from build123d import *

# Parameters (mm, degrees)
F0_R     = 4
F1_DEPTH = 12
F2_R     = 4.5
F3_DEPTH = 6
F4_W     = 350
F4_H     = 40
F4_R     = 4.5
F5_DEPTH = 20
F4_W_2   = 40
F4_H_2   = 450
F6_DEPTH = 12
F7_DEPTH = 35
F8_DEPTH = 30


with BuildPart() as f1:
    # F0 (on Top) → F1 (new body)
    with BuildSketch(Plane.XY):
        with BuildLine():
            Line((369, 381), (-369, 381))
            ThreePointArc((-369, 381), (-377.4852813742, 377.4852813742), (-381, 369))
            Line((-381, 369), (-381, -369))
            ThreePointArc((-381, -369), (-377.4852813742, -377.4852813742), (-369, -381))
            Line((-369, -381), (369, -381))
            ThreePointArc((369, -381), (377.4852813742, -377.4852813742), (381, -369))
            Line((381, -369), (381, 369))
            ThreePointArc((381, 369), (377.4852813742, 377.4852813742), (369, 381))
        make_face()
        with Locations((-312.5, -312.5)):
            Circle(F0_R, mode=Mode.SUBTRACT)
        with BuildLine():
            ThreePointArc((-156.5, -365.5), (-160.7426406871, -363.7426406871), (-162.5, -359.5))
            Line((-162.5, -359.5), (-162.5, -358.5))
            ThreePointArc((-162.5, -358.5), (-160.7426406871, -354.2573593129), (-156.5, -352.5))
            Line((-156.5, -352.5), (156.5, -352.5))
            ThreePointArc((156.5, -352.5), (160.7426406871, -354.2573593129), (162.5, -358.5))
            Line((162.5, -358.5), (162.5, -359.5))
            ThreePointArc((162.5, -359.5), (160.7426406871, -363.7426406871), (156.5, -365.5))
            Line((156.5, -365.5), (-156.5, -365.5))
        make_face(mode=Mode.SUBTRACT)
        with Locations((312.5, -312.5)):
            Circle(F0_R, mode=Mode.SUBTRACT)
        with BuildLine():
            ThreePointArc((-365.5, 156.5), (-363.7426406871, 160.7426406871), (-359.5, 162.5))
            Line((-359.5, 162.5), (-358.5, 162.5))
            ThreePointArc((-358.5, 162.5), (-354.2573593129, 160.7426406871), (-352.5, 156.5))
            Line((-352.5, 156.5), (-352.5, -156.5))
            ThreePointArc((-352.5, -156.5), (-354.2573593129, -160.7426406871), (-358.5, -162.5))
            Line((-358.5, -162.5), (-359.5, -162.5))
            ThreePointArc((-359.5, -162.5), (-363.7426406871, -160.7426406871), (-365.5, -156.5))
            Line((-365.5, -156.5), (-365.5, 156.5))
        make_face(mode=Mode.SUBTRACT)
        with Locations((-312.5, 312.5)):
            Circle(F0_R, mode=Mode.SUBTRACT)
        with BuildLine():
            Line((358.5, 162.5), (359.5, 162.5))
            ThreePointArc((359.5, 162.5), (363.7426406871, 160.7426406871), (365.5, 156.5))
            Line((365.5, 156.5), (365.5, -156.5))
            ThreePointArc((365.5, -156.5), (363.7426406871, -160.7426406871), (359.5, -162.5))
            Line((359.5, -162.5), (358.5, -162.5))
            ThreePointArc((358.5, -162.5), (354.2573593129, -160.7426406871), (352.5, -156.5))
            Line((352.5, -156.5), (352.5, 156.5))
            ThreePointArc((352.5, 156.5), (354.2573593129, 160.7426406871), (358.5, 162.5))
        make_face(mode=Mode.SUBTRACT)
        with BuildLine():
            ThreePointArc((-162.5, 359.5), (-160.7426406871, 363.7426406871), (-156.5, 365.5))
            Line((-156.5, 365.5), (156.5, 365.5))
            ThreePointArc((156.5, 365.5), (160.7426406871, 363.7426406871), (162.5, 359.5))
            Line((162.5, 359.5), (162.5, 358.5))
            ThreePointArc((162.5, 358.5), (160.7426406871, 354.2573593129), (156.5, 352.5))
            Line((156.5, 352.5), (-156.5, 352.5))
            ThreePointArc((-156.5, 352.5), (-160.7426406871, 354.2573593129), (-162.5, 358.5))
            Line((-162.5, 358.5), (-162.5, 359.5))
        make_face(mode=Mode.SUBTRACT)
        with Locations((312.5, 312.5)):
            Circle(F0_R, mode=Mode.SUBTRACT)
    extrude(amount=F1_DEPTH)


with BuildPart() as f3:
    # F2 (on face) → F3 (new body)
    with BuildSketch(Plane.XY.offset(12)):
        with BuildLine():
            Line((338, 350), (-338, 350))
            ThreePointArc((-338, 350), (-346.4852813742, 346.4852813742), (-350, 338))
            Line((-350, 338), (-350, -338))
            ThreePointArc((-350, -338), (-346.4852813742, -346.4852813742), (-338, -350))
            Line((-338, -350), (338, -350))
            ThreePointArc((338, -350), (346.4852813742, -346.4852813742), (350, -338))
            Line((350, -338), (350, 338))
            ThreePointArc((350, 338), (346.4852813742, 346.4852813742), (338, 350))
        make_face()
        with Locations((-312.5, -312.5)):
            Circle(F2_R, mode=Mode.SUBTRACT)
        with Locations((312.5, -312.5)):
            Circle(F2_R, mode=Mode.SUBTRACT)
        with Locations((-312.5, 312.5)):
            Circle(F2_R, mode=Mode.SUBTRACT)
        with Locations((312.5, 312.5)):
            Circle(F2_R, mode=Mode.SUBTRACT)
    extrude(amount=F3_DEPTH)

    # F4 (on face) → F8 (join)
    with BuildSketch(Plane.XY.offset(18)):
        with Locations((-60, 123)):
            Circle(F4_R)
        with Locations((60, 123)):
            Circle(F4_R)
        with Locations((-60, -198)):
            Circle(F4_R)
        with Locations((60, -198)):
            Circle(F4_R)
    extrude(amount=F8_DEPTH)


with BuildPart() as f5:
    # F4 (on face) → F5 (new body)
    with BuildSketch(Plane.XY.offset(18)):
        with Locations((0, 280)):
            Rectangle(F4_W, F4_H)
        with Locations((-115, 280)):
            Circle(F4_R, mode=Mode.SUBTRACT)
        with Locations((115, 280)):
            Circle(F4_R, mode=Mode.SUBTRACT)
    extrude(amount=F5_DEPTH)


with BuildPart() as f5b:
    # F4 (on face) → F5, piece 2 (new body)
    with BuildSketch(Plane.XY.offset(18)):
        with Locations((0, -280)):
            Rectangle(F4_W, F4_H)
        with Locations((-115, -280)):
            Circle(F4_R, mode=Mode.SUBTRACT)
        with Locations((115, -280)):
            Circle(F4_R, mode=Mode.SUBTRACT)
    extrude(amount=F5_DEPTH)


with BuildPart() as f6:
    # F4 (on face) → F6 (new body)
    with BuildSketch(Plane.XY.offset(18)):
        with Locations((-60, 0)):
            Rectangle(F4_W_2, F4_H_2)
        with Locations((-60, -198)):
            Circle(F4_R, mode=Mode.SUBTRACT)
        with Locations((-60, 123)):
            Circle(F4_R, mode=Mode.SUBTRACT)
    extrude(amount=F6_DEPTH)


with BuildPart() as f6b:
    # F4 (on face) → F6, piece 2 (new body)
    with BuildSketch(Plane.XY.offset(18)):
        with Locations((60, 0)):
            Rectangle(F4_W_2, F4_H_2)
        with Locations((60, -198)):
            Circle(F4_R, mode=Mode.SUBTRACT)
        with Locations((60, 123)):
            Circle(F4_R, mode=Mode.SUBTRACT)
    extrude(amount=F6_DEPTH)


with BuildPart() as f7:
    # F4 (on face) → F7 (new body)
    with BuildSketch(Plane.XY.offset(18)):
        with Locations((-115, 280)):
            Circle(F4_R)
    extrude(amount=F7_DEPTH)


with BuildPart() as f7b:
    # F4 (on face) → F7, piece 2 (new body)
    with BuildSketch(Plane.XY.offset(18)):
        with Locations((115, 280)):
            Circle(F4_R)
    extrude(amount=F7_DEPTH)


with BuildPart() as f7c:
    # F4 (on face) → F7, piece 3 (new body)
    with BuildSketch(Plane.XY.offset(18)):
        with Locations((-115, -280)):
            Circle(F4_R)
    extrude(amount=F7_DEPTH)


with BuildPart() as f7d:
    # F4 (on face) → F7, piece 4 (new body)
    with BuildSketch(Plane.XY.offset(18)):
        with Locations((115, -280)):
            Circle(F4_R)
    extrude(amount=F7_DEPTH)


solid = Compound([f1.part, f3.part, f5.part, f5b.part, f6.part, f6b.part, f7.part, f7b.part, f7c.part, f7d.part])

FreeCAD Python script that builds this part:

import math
import FreeCAD as App
import Part
import Sketcher
Q = App.Units.Quantity

doc = App.newDocument("Part")
params = doc.addObject("Spreadsheet::Sheet", "Params")
for row, (alias, value) in enumerate([
    ("sketch1_diameter", "8 mm"),
    ("sketch1_radius", "12 mm"),
    ("sketch1_radius2", "6 mm"),
    ("sketch1_width", "738 mm"),
    ("sketch1_width2", "313 mm"),
    ("pad1_length", "12 mm"),
    ("sketch2_diameter", "9 mm"),
    ("sketch2_radius", "12 mm"),
    ("sketch2_width", "676 mm"),
    ("pad2_length", "6 mm"),
    ("sketch3_diameter", "9 mm"),
    ("pad3_length", "30 mm"),
    ("sketch4_diameter", "9 mm"),
    ("sketch4_width", "350 mm"),
    ("sketch4_height", "40 mm"),
    ("pad4_length", "20 mm"),
    ("sketch5_diameter", "9 mm"),
    ("sketch5_width", "350 mm"),
    ("sketch5_height", "40 mm"),
    ("pad5_length", "20 mm"),
    ("sketch6_diameter", "9 mm"),
    ("sketch6_width", "40 mm"),
    ("sketch6_height", "450 mm"),
    ("pad6_length", "12 mm"),
    ("sketch7_diameter", "9 mm"),
    ("sketch7_width", "40 mm"),
    ("sketch7_height", "450 mm"),
    ("pad7_length", "12 mm"),
    ("sketch8_diameter", "9 mm"),
    ("pad8_length", "35 mm"),
    ("sketch9_diameter", "9 mm"),
    ("pad9_length", "35 mm"),
    ("sketch10_diameter", "9 mm"),
    ("pad10_length", "35 mm"),
    ("sketch11_diameter", "9 mm"),
    ("pad11_length", "35 mm"),
], start=1):
    params.set(f"A{row}", alias)
    params.set(f"B{row}", "=" + value)
    params.setAlias(f"B{row}", alias)

body = doc.addObject("PartDesign::Body", "Body")

sketch1 = body.newObject("Sketcher::SketchObject", "Sketch")
sketch1.AttachmentSupport = (doc.getObject("XY_Plane"), [""])
sketch1.MapMode = "FlatFace"
sketch1.addGeometry(Part.LineSegment(App.Vector(369, 381, 0), App.Vector(-369, 381, 0)), False)
sketch1.addGeometry(Part.ArcOfCircle(Part.Circle(App.Vector(-369, 369, 0), App.Vector(0, 0, 1), 12), math.radians(90), math.radians(180)), False)
sketch1.addGeometry(Part.LineSegment(App.Vector(-381, 369, 0), App.Vector(-381, -369, 0)), False)
sketch1.addGeometry(Part.ArcOfCircle(Part.Circle(App.Vector(-369, -369, 0), App.Vector(0, 0, 1), 12), math.radians(180), math.radians(270)), False)
sketch1.addGeometry(Part.LineSegment(App.Vector(-369, -381, 0), App.Vector(369, -381, 0)), False)
sketch1.addGeometry(Part.ArcOfCircle(Part.Circle(App.Vector(369, -369, 0), App.Vector(0, 0, 1), 12), math.radians(-90), math.radians(0)), False)
sketch1.addGeometry(Part.LineSegment(App.Vector(381, -369, 0), App.Vector(381, 369, 0)), False)
sketch1.addGeometry(Part.ArcOfCircle(Part.Circle(App.Vector(369, 369, 0), App.Vector(0, 0, 1), 12), math.radians(0), math.radians(90)), False)
sketch1.addGeometry(Part.Circle(App.Vector(-312.5, -312.5, 0), App.Vector(0, 0, 1), 4), False)
sketch1.addGeometry(Part.LineSegment(App.Vector(156.5, -365.5, 0), App.Vector(-156.5, -365.5, 0)), False)
sketch1.addGeometry(Part.ArcOfCircle(Part.Circle(App.Vector(-156.5, -359.5, 0), App.Vector(0, 0, 1), 6), math.radians(180), math.radians(270)), False)
sketch1.addGeometry(Part.LineSegment(App.Vector(-162.5, -359.5, 0), App.Vector(-162.5, -358.5, 0)), False)
sketch1.addGeometry(Part.ArcOfCircle(Part.Circle(App.Vector(-156.5, -358.5, 0), App.Vector(0, 0, 1), 6), math.radians(90), math.radians(180)), False)
sketch1.addGeometry(Part.LineSegment(App.Vector(-156.5, -352.5, 0), App.Vector(156.5, -352.5, 0)), False)
sketch1.addGeometry(Part.ArcOfCircle(Part.Circle(App.Vector(156.5, -358.5, 0), App.Vector(0, 0, 1), 6), math.radians(0), math.radians(90)), False)
sketch1.addGeometry(Part.LineSegment(App.Vector(162.5, -358.5, 0), App.Vector(162.5, -359.5, 0)), False)
sketch1.addGeometry(Part.ArcOfCircle(Part.Circle(App.Vector(156.5, -359.5, 0), App.Vector(0, 0, 1), 6), math.radians(-90), math.radians(0)), False)
sketch1.addGeometry(Part.Circle(App.Vector(312.5, -312.5, 0), App.Vector(0, 0, 1), 4), False)
sketch1.addGeometry(Part.LineSegment(App.Vector(-365.5, -156.5, 0), App.Vector(-365.5, 156.5, 0)), False)
sketch1.addGeometry(Part.ArcOfCircle(Part.Circle(App.Vector(-359.5, 156.5, 0), App.Vector(0, 0, 1), 6), math.radians(90), math.radians(180)), False)
sketch1.addGeometry(Part.LineSegment(App.Vector(-359.5, 162.5, 0), App.Vector(-358.5, 162.5, 0)), False)
sketch1.addGeometry(Part.ArcOfCircle(Part.Circle(App.Vector(-358.5, 156.5, 0), App.Vector(0, 0, 1), 6), math.radians(0), math.radians(90)), False)
sketch1.addGeometry(Part.LineSegment(App.Vector(-352.5, 156.5, 0), App.Vector(-352.5, -156.5, 0)), False)
sketch1.addGeometry(Part.ArcOfCircle(Part.Circle(App.Vector(-358.5, -156.5, 0), App.Vector(0, 0, 1), 6), math.radians(-90), math.radians(0)), False)
sketch1.addGeometry(Part.LineSegment(App.Vector(-358.5, -162.5, 0), App.Vector(-359.5, -162.5, 0)), False)
sketch1.addGeometry(Part.ArcOfCircle(Part.Circle(App.Vector(-359.5, -156.5, 0), App.Vector(0, 0, 1), 6), math.radians(180), math.radians(270)), False)
sketch1.addGeometry(Part.Circle(App.Vector(-312.5, 312.5, 0), App.Vector(0, 0, 1), 4), False)
sketch1.addGeometry(Part.ArcOfCircle(Part.Circle(App.Vector(358.5, 156.5, 0), App.Vector(0, 0, 1), 6), math.radians(90), math.radians(180)), False)
sketch1.addGeometry(Part.LineSegment(App.Vector(358.5, 162.5, 0), App.Vector(359.5, 162.5, 0)), False)
sketch1.addGeometry(Part.ArcOfCircle(Part.Circle(App.Vector(359.5, 156.5, 0), App.Vector(0, 0, 1), 6), math.radians(0), math.radians(90)), False)
sketch1.addGeometry(Part.LineSegment(App.Vector(365.5, 156.5, 0), App.Vector(365.5, -156.5, 0)), False)
sketch1.addGeometry(Part.ArcOfCircle(Part.Circle(App.Vector(359.5, -156.5, 0), App.Vector(0, 0, 1), 6), math.radians(-90), math.radians(0)), False)
sketch1.addGeometry(Part.LineSegment(App.Vector(359.5, -162.5, 0), App.Vector(358.5, -162.5, 0)), False)
sketch1.addGeometry(Part.ArcOfCircle(Part.Circle(App.Vector(358.5, -156.5, 0), App.Vector(0, 0, 1), 6), math.radians(180), math.radians(270)), False)
sketch1.addGeometry(Part.LineSegment(App.Vector(352.5, -156.5, 0), App.Vector(352.5, 156.5, 0)), False)
sketch1.addGeometry(Part.LineSegment(App.Vector(-162.5, 358.5, 0), App.Vector(-162.5, 359.5, 0)), False)
sketch1.addGeometry(Part.ArcOfCircle(Part.Circle(App.Vector(-156.5, 359.5, 0), App.Vector(0, 0, 1), 6), math.radians(90), math.radians(180)), False)
sketch1.addGeometry(Part.LineSegment(App.Vector(-156.5, 365.5, 0), App.Vector(156.5, 365.5, 0)), False)
sketch1.addGeometry(Part.ArcOfCircle(Part.Circle(App.Vector(156.5, 359.5, 0), App.Vector(0, 0, 1), 6), math.radians(0), math.radians(90)), False)
sketch1.addGeometry(Part.LineSegment(App.Vector(162.5, 359.5, 0), App.Vector(162.5, 358.5, 0)), False)
sketch1.addGeometry(Part.ArcOfCircle(Part.Circle(App.Vector(156.5, 358.5, 0), App.Vector(0, 0, 1), 6), math.radians(-90), math.radians(0)), False)
sketch1.addGeometry(Part.LineSegment(App.Vector(156.5, 352.5, 0), App.Vector(-156.5, 352.5, 0)), False)
sketch1.addGeometry(Part.ArcOfCircle(Part.Circle(App.Vector(-156.5, 358.5, 0), App.Vector(0, 0, 1), 6), math.radians(180), math.radians(270)), False)
sketch1.addGeometry(Part.Circle(App.Vector(312.5, 312.5, 0), App.Vector(0, 0, 1), 4), False)
sketch1.addConstraint(Sketcher.Constraint("Tangent", 0, 2, 1, 1))
sketch1.addConstraint(Sketcher.Constraint("Tangent", 1, 2, 2, 1))
sketch1.addConstraint(Sketcher.Constraint("Tangent", 2, 2, 3, 1))
sketch1.addConstraint(Sketcher.Constraint("Tangent", 3, 2, 4, 1))
sketch1.addConstraint(Sketcher.Constraint("Tangent", 4, 2, 5, 1))
sketch1.addConstraint(Sketcher.Constraint("Tangent", 5, 2, 6, 1))
sketch1.addConstraint(Sketcher.Constraint("Tangent", 6, 2, 7, 1))
sketch1.addConstraint(Sketcher.Constraint("Tangent", 7, 2, 0, 1))
sketch1.addConstraint(Sketcher.Constraint("Tangent", 9, 2, 10, 2))
sketch1.addConstraint(Sketcher.Constraint("Tangent", 10, 1, 11, 1))
sketch1.addConstraint(Sketcher.Constraint("Tangent", 11, 2, 12, 2))
sketch1.addConstraint(Sketcher.Constraint("Tangent", 12, 1, 13, 1))
sketch1.addConstraint(Sketcher.Constraint("Tangent", 13, 2, 14, 2))
sketch1.addConstraint(Sketcher.Constraint("Tangent", 14, 1, 15, 1))
sketch1.addConstraint(Sketcher.Constraint("Tangent", 15, 2, 16, 2))
sketch1.addConstraint(Sketcher.Constraint("Tangent", 16, 1, 9, 1))
sketch1.addConstraint(Sketcher.Constraint("Tangent", 18, 2, 19, 2))
sketch1.addConstraint(Sketcher.Constraint("Tangent", 19, 1, 20, 1))
sketch1.addConstraint(Sketcher.Constraint("Tangent", 20, 2, 21, 2))
sketch1.addConstraint(Sketcher.Constraint("Tangent", 21, 1, 22, 1))
sketch1.addConstraint(Sketcher.Constraint("Tangent", 22, 2, 23, 2))
sketch1.addConstraint(Sketcher.Constraint("Tangent", 23, 1, 24, 1))
sketch1.addConstraint(Sketcher.Constraint("Tangent", 24, 2, 25, 2))
sketch1.addConstraint(Sketcher.Constraint("Tangent", 25, 1, 18, 1))
sketch1.addConstraint(Sketcher.Constraint("Tangent", 27, 1, 28, 1))
sketch1.addConstraint(Sketcher.Constraint("Tangent", 28, 2, 29, 2))
sketch1.addConstraint(Sketcher.Constraint("Tangent", 29, 1, 30, 1))
sketch1.addConstraint(Sketcher.Constraint("Tangent", 30, 2, 31, 2))
sketch1.addConstraint(Sketcher.Constraint("Tangent", 31, 1, 32, 1))
sketch1.addConstraint(Sketcher.Constraint("Tangent", 32, 2, 33, 2))
sketch1.addConstraint(Sketcher.Constraint("Tangent", 33, 1, 34, 1))
sketch1.addConstraint(Sketcher.Constraint("Tangent", 34, 2, 27, 2))
sketch1.addConstraint(Sketcher.Constraint("Tangent", 35, 2, 36, 2))
sketch1.addConstraint(Sketcher.Constraint("Tangent", 36, 1, 37, 1))
sketch1.addConstraint(Sketcher.Constraint("Tangent", 37, 2, 38, 2))
sketch1.addConstraint(Sketcher.Constraint("Tangent", 38, 1, 39, 1))
sketch1.addConstraint(Sketcher.Constraint("Tangent", 39, 2, 40, 2))
sketch1.addConstraint(Sketcher.Constraint("Tangent", 40, 1, 41, 1))
sketch1.addConstraint(Sketcher.Constraint("Tangent", 41, 2, 42, 2))
sketch1.addConstraint(Sketcher.Constraint("Tangent", 42, 1, 35, 1))
sketch1.addConstraint(Sketcher.Constraint("Horizontal", 0))
sketch1.addConstraint(Sketcher.Constraint("Vertical", 2))
sketch1.addConstraint(Sketcher.Constraint("Horizontal", 4))
sketch1.addConstraint(Sketcher.Constraint("Vertical", 6))
sketch1.addConstraint(Sketcher.Constraint("Horizontal", 9))
sketch1.addConstraint(Sketcher.Constraint("Vertical", 11))
sketch1.addConstraint(Sketcher.Constraint("Horizontal", 13))
sketch1.addConstraint(Sketcher.Constraint("Vertical", 15))
sketch1.addConstraint(Sketcher.Constraint("Vertical", 18))
sketch1.addConstraint(Sketcher.Constraint("Horizontal", 20))
sketch1.addConstraint(Sketcher.Constraint("Vertical", 22))
sketch1.addConstraint(Sketcher.Constraint("Horizontal", 24))
sketch1.addConstraint(Sketcher.Constraint("Horizontal", 28))
sketch1.addConstraint(Sketcher.Constraint("Vertical", 30))
sketch1.addConstraint(Sketcher.Constraint("Horizontal", 32))
sketch1.addConstraint(Sketcher.Constraint("Vertical", 34))
sketch1.addConstraint(Sketcher.Constraint("Vertical", 35))
sketch1.addConstraint(Sketcher.Constraint("Horizontal", 37))
sketch1.addConstraint(Sketcher.Constraint("Vertical", 39))
sketch1.addConstraint(Sketcher.Constraint("Horizontal", 41))
sketch1.addConstraint(Sketcher.Constraint("Equal", 1, 3))
sketch1.addConstraint(Sketcher.Constraint("Equal", 3, 5))
sketch1.addConstraint(Sketcher.Constraint("Equal", 5, 7))
sketch1.addConstraint(Sketcher.Constraint("Equal", 10, 12))
sketch1.addConstraint(Sketcher.Constraint("Equal", 12, 14))
sketch1.addConstraint(Sketcher.Constraint("Equal", 14, 16))
sketch1.addConstraint(Sketcher.Constraint("Equal", 8, 17))
sketch1.addConstraint(Sketcher.Constraint("Equal", 16, 19))
sketch1.addConstraint(Sketcher.Constraint("Equal", 19, 21))
sketch1.addConstraint(Sketcher.Constraint("Equal", 21, 23))
sketch1.addConstraint(Sketcher.Constraint("Equal", 23, 25))
sketch1.addConstraint(Sketcher.Constraint("Equal", 17, 26))
sketch1.addConstraint(Sketcher.Constraint("Equal", 25, 27))
sketch1.addConstraint(Sketcher.Constraint("Equal", 27, 29))
sketch1.addConstraint(Sketcher.Constraint("Equal", 29, 31))
sketch1.addConstraint(Sketcher.Constraint("Equal", 31, 33))
sketch1.addConstraint(Sketcher.Constraint("Equal", 33, 36))
sketch1.addConstraint(Sketcher.Constraint("Equal", 36, 38))
sketch1.addConstraint(Sketcher.Constraint("Equal", 38, 40))
sketch1.addConstraint(Sketcher.Constraint("Equal", 40, 42))
sketch1.addConstraint(Sketcher.Constraint("Equal", 26, 43))
sketch1.addConstraint(Sketcher.Constraint("Symmetric", 1, 3, 5, 3, -1, 1))
sketch1.addConstraint(Sketcher.Constraint("Symmetric", 17, 3, 26, 3, -1, 1))
sketch1.addConstraint(Sketcher.Constraint("Symmetric", 23, 3, 27, 3, -1, 1))
sketch1.addConstraint(Sketcher.Constraint("Symmetric", 19, 3, 31, 3, -1, 1))
sketch1.addConstraint(Sketcher.Constraint("Symmetric", 16, 3, 36, 3, -1, 1))
sketch1.addConstraint(Sketcher.Constraint("Symmetric", 12, 3, 40, 3, -1, 1))
sketch1.addConstraint(Sketcher.Constraint("Symmetric", 8, 3, 43, 3, -1, 1))
sketch1.addConstraint(Sketcher.Constraint("Symmetric", 8, 3, 17, 3, -2))
sketch1.addConstraint(Sketcher.Constraint("Horizontal", 21, 3, 27, 3))
sketch1.addConstraint(Sketcher.Constraint("Vertical", 12, 3, 36, 3))
sketch1.addConstraint(Sketcher.Constraint("Equal", 4, 2))
sketch1.addConstraint(Sketcher.Constraint("Equal", 32, 11))
sketch1.addConstraint(Sketcher.Constraint("Equal", 41, 18))
sketch1.addConstraint(Sketcher.Constraint("Diameter", 8, Q("8 mm")))
sketch1.addConstraint(Sketcher.Constraint("Radius", 1, Q("12 mm")))
sketch1.addConstraint(Sketcher.Constraint("Radius", 10, Q("6 mm")))
sketch1.addConstraint(Sketcher.Constraint("DistanceX", 0, 2, 0, 1, Q("738 mm")))
sketch1.addConstraint(Sketcher.Constraint("DistanceX", 9, 2, 9, 1, Q("313 mm")))
sketch1.addConstraint(Sketcher.Constraint("DistanceX", 20, 1, 20, 2, Q("1 mm")))
sketch1.addConstraint(Sketcher.Constraint("DistanceX", 8, 3, -1, 1, Q("312.5 mm")))
sketch1.addConstraint(Sketcher.Constraint("DistanceY", 8, 3, -1, 1, Q("312.5 mm")))
sketch1.addConstraint(Sketcher.Constraint("DistanceY", 10, 3, -1, 1, Q("359.5 mm")))
sketch1.addConstraint(Sketcher.Constraint("DistanceX", 19, 3, -1, 1, Q("359.5 mm")))
sketch1.setExpression("Constraints[94]", "Params.sketch1_diameter")
sketch1.setExpression("Constraints[95]", "Params.sketch1_radius")
sketch1.setExpression("Constraints[96]", "Params.sketch1_radius2")
sketch1.setExpression("Constraints[97]", "Params.sketch1_width")
sketch1.setExpression("Constraints[98]", "Params.sketch1_width2")
pad1 = body.newObject("PartDesign::Pad", "Pad")
pad1.Profile = sketch1
pad1.setExpression("Length", "Params.pad1_length")
body2 = doc.addObject("PartDesign::Body", "Body001")

sketch2 = body2.newObject("Sketcher::SketchObject", "Sketch001")
sketch2.AttachmentSupport = (doc.getObject("XY_Plane001"), [""])
sketch2.MapMode = "FlatFace"
sketch2.AttachmentOffset = App.Placement(App.Vector(0, 0, 12), App.Rotation())
sketch2.addGeometry(Part.LineSegment(App.Vector(338, 350, 0), App.Vector(-338, 350, 0)), False)
sketch2.addGeometry(Part.ArcOfCircle(Part.Circle(App.Vector(-338, 338, 0), App.Vector(0, 0, 1), 12), math.radians(90), math.radians(180)), False)
sketch2.addGeometry(Part.LineSegment(App.Vector(-350, 338, 0), App.Vector(-350, -338, 0)), False)
sketch2.addGeometry(Part.ArcOfCircle(Part.Circle(App.Vector(-338, -338, 0), App.Vector(0, 0, 1), 12), math.radians(180), math.radians(270)), False)
sketch2.addGeometry(Part.LineSegment(App.Vector(-338, -350, 0), App.Vector(338, -350, 0)), False)
sketch2.addGeometry(Part.ArcOfCircle(Part.Circle(App.Vector(338, -338, 0), App.Vector(0, 0, 1), 12), math.radians(-90), math.radians(0)), False)
sketch2.addGeometry(Part.LineSegment(App.Vector(350, -338, 0), App.Vector(350, 338, 0)), False)
sketch2.addGeometry(Part.ArcOfCircle(Part.Circle(App.Vector(338, 338, 0), App.Vector(0, 0, 1), 12), math.radians(0), math.radians(90)), False)
sketch2.addGeometry(Part.Circle(App.Vector(-312.5, -312.5, 0), App.Vector(0, 0, 1), 4.5), False)
sketch2.addGeometry(Part.Circle(App.Vector(312.5, -312.5, 0), App.Vector(0, 0, 1), 4.5), False)
sketch2.addGeometry(Part.Circle(App.Vector(-312.5, 312.5, 0), App.Vector(0, 0, 1), 4.5), False)
sketch2.addGeometry(Part.Circle(App.Vector(312.5, 312.5, 0), App.Vector(0, 0, 1), 4.5), False)
sketch2.addConstraint(Sketcher.Constraint("Tangent", 0, 2, 1, 1))
sketch2.addConstraint(Sketcher.Constraint("Tangent", 1, 2, 2, 1))
sketch2.addConstraint(Sketcher.Constraint("Tangent", 2, 2, 3, 1))
sketch2.addConstraint(Sketcher.Constraint("Tangent", 3, 2, 4, 1))
sketch2.addConstraint(Sketcher.Constraint("Tangent", 4, 2, 5, 1))
sketch2.addConstraint(Sketcher.Constraint("Tangent", 5, 2, 6, 1))
sketch2.addConstraint(Sketcher.Constraint("Tangent", 6, 2, 7, 1))
sketch2.addConstraint(Sketcher.Constraint("Tangent", 7, 2, 0, 1))
sketch2.addConstraint(Sketcher.Constraint("Horizontal", 0))
sketch2.addConstraint(Sketcher.Constraint("Vertical", 2))
sketch2.addConstraint(Sketcher.Constraint("Horizontal", 4))
sketch2.addConstraint(Sketcher.Constraint("Vertical", 6))
sketch2.addConstraint(Sketcher.Constraint("Equal", 1, 3))
sketch2.addConstraint(Sketcher.Constraint("Equal", 3, 5))
sketch2.addConstraint(Sketcher.Constraint("Equal", 5, 7))
sketch2.addConstraint(Sketcher.Constraint("Equal", 8, 9))
sketch2.addConstraint(Sketcher.Constraint("Equal", 9, 10))
sketch2.addConstraint(Sketcher.Constraint("Equal", 10, 11))
sketch2.addConstraint(Sketcher.Constraint("Symmetric", 1, 3, 5, 3, -1, 1))
sketch2.addConstraint(Sketcher.Constraint("Symmetric", 9, 3, 10, 3, -1, 1))
sketch2.addConstraint(Sketcher.Constraint("Symmetric", 8, 3, 11, 3, -1, 1))
sketch2.addConstraint(Sketcher.Constraint("Symmetric", 8, 3, 9, 3, -2))
sketch2.addConstraint(Sketcher.Constraint("Equal", 4, 2))
sketch2.addConstraint(Sketcher.Constraint("Diameter", 8, Q("9 mm")))
sketch2.addConstraint(Sketcher.Constraint("Radius", 1, Q("12 mm")))
sketch2.addConstraint(Sketcher.Constraint("DistanceX", 0, 2, 0, 1, Q("676 mm")))
sketch2.addConstraint(Sketcher.Constraint("DistanceX", 8, 3, 9, 3, Q("625 mm")))
sketch2.addConstraint(Sketcher.Constraint("DistanceY", 8, 3, 10, 3, Q("625 mm")))
sketch2.setExpression("Constraints[23]", "Params.sketch2_diameter")
sketch2.setExpression("Constraints[24]", "Params.sketch2_radius")
sketch2.setExpression("Constraints[25]", "Params.sketch2_width")
pad2 = body2.newObject("PartDesign::Pad", "Pad001")
pad2.Profile = sketch2
pad2.setExpression("Length", "Params.pad2_length")

sketch3 = body2.newObject("Sketcher::SketchObject", "Sketch002")
sketch3.AttachmentSupport = (doc.getObject("XY_Plane001"), [""])
sketch3.MapMode = "FlatFace"
sketch3.AttachmentOffset = App.Placement(App.Vector(0, 0, 18), App.Rotation())
sketch3.addGeometry(Part.Circle(App.Vector(-60, 123, 0), App.Vector(0, 0, 1), 4.5), False)
sketch3.addGeometry(Part.Circle(App.Vector(60, 123, 0), App.Vector(0, 0, 1), 4.5), False)
sketch3.addGeometry(Part.Circle(App.Vector(-60, -198, 0), App.Vector(0, 0, 1), 4.5), False)
sketch3.addGeometry(Part.Circle(App.Vector(60, -198, 0), App.Vector(0, 0, 1), 4.5), False)
sketch3.addConstraint(Sketcher.Constraint("Equal", 0, 1))
sketch3.addConstraint(Sketcher.Constraint("Equal", 1, 2))
sketch3.addConstraint(Sketcher.Constraint("Equal", 2, 3))
sketch3.addConstraint(Sketcher.Constraint("Symmetric", 0, 3, 1, 3, -2))
sketch3.addConstraint(Sketcher.Constraint("Symmetric", 2, 3, 3, 3, -2))
sketch3.addConstraint(Sketcher.Constraint("Vertical", 0, 3, 2, 3))
sketch3.addConstraint(Sketcher.Constraint("Diameter", 0, Q("9 mm")))
sketch3.addConstraint(Sketcher.Constraint("DistanceX", 0, 3, -1, 1, Q("60 mm")))
sketch3.addConstraint(Sketcher.Constraint("DistanceY", -1, 1, 0, 3, Q("123 mm")))
sketch3.addConstraint(Sketcher.Constraint("DistanceY", 2, 3, -1, 1, Q("198 mm")))
sketch3.setExpression("Constraints[6]", "Params.sketch3_diameter")
pad3 = body2.newObject("PartDesign::Pad", "Pad002")
pad3.Profile = sketch3
pad3.setExpression("Length", "Params.pad3_length")
body3 = doc.addObject("PartDesign::Body", "Body002")

sketch4 = body3.newObject("Sketcher::SketchObject", "Sketch003")
sketch4.AttachmentSupport = (doc.getObject("XY_Plane002"), [""])
sketch4.MapMode = "FlatFace"
sketch4.AttachmentOffset = App.Placement(App.Vector(0, 0, 18), App.Rotation())
sketch4.addGeometry(Part.LineSegment(App.Vector(-175, 300, 0), App.Vector(-175, 260, 0)), False)
sketch4.addGeometry(Part.LineSegment(App.Vector(-175, 260, 0), App.Vector(175, 260, 0)), False)
sketch4.addGeometry(Part.LineSegment(App.Vector(175, 260, 0), App.Vector(175, 300, 0)), False)
sketch4.addGeometry(Part.LineSegment(App.Vector(175, 300, 0), App.Vector(-175, 300, 0)), False)
sketch4.addGeometry(Part.Circle(App.Vector(-115, 280, 0), App.Vector(0, 0, 1), 4.5), False)
sketch4.addGeometry(Part.Circle(App.Vector(115, 280, 0), App.Vector(0, 0, 1), 4.5), False)
sketch4.addConstraint(Sketcher.Constraint("Coincident", 0, 2, 1, 1))
sketch4.addConstraint(Sketcher.Constraint("Coincident", 1, 2, 2, 1))
sketch4.addConstraint(Sketcher.Constraint("Coincident", 2, 2, 3, 1))
sketch4.addConstraint(Sketcher.Constraint("Coincident", 3, 2, 0, 1))
sketch4.addConstraint(Sketcher.Constraint("Vertical", 0))
sketch4.addConstraint(Sketcher.Constraint("Horizontal", 1))
sketch4.addConstraint(Sketcher.Constraint("Vertical", 2))
sketch4.addConstraint(Sketcher.Constraint("Horizontal", 3))
sketch4.addConstraint(Sketcher.Constraint("Equal", 4, 5))
sketch4.addConstraint(Sketcher.Constraint("Symmetric", 4, 3, 5, 3, -2))
sketch4.addConstraint(Sketcher.Constraint("Diameter", 4, Q("9 mm")))
sketch4.addConstraint(Sketcher.Constraint("DistanceX", 1, 1, 1, 2, Q("350 mm")))
sketch4.addConstraint(Sketcher.Constraint("DistanceY", 0, 2, 0, 1, Q("40 mm")))
sketch4.addConstraint(Sketcher.Constraint("DistanceX", 4, 3, -1, 1, Q("115 mm")))
sketch4.addConstraint(Sketcher.Constraint("DistanceY", -1, 1, 4, 3, Q("280 mm")))
sketch4.addConstraint(Sketcher.Constraint("DistanceX", 0, 2, -1, 1, Q("175 mm")))
sketch4.addConstraint(Sketcher.Constraint("DistanceY", -1, 1, 0, 2, Q("260 mm")))
sketch4.setExpression("Constraints[10]", "Params.sketch4_diameter")
sketch4.setExpression("Constraints[11]", "Params.sketch4_width")
sketch4.setExpression("Constraints[12]", "Params.sketch4_height")
pad4 = body3.newObject("PartDesign::Pad", "Pad003")
pad4.Profile = sketch4
pad4.setExpression("Length", "Params.pad4_length")
body4 = doc.addObject("PartDesign::Body", "Body003")

sketch5 = body4.newObject("Sketcher::SketchObject", "Sketch004")
sketch5.AttachmentSupport = (doc.getObject("XY_Plane003"), [""])
sketch5.MapMode = "FlatFace"
sketch5.AttachmentOffset = App.Placement(App.Vector(0, 0, 18), App.Rotation())
sketch5.addGeometry(Part.LineSegment(App.Vector(-175, -260, 0), App.Vector(-175, -300, 0)), False)
sketch5.addGeometry(Part.LineSegment(App.Vector(-175, -300, 0), App.Vector(175, -300, 0)), False)
sketch5.addGeometry(Part.LineSegment(App.Vector(175, -300, 0), App.Vector(175, -260, 0)), False)
sketch5.addGeometry(Part.LineSegment(App.Vector(175, -260, 0), App.Vector(-175, -260, 0)), False)
sketch5.addGeometry(Part.Circle(App.Vector(-115, -280, 0), App.Vector(0, 0, 1), 4.5), False)
sketch5.addGeometry(Part.Circle(App.Vector(115, -280, 0), App.Vector(0, 0, 1), 4.5), False)
sketch5.addConstraint(Sketcher.Constraint("Coincident", 0, 2, 1, 1))
sketch5.addConstraint(Sketcher.Constraint("Coincident", 1, 2, 2, 1))
sketch5.addConstraint(Sketcher.Constraint("Coincident", 2, 2, 3, 1))
sketch5.addConstraint(Sketcher.Constraint("Coincident", 3, 2, 0, 1))
sketch5.addConstraint(Sketcher.Constraint("Vertical", 0))
sketch5.addConstraint(Sketcher.Constraint("Horizontal", 1))
sketch5.addConstraint(Sketcher.Constraint("Vertical", 2))
sketch5.addConstraint(Sketcher.Constraint("Horizontal", 3))
sketch5.addConstraint(Sketcher.Constraint("Equal", 4, 5))
sketch5.addConstraint(Sketcher.Constraint("Symmetric", 4, 3, 5, 3, -2))
sketch5.addConstraint(Sketcher.Constraint("Diameter", 4, Q("9 mm")))
sketch5.addConstraint(Sketcher.Constraint("DistanceX", 1, 1, 1, 2, Q("350 mm")))
sketch5.addConstraint(Sketcher.Constraint("DistanceY", 0, 2, 0, 1, Q("40 mm")))
sketch5.addConstraint(Sketcher.Constraint("DistanceX", 4, 3, -1, 1, Q("115 mm")))
sketch5.addConstraint(Sketcher.Constraint("DistanceY", 4, 3, -1, 1, Q("280 mm")))
sketch5.addConstraint(Sketcher.Constraint("DistanceX", 0, 2, -1, 1, Q("175 mm")))
sketch5.addConstraint(Sketcher.Constraint("DistanceY", 0, 2, -1, 1, Q("300 mm")))
sketch5.setExpression("Constraints[10]", "Params.sketch5_diameter")
sketch5.setExpression("Constraints[11]", "Params.sketch5_width")
sketch5.setExpression("Constraints[12]", "Params.sketch5_height")
pad5 = body4.newObject("PartDesign::Pad", "Pad004")
pad5.Profile = sketch5
pad5.setExpression("Length", "Params.pad5_length")
body5 = doc.addObject("PartDesign::Body", "Body004")

sketch6 = body5.newObject("Sketcher::SketchObject", "Sketch005")
sketch6.AttachmentSupport = (doc.getObject("XY_Plane004"), [""])
sketch6.MapMode = "FlatFace"
sketch6.AttachmentOffset = App.Placement(App.Vector(0, 0, 18), App.Rotation())
sketch6.addGeometry(Part.LineSegment(App.Vector(-80, 225, 0), App.Vector(-80, -225, 0)), False)
sketch6.addGeometry(Part.LineSegment(App.Vector(-80, -225, 0), App.Vector(-40, -225, 0)), False)
sketch6.addGeometry(Part.LineSegment(App.Vector(-40, -225, 0), App.Vector(-40, 225, 0)), False)
sketch6.addGeometry(Part.LineSegment(App.Vector(-40, 225, 0), App.Vector(-80, 225, 0)), False)
sketch6.addGeometry(Part.Circle(App.Vector(-60, -198, 0), App.Vector(0, 0, 1), 4.5), False)
sketch6.addGeometry(Part.Circle(App.Vector(-60, 123, 0), App.Vector(0, 0, 1), 4.5), False)
sketch6.addConstraint(Sketcher.Constraint("Coincident", 0, 2, 1, 1))
sketch6.addConstraint(Sketcher.Constraint("Coincident", 1, 2, 2, 1))
sketch6.addConstraint(Sketcher.Constraint("Coincident", 2, 2, 3, 1))
sketch6.addConstraint(Sketcher.Constraint("Coincident", 3, 2, 0, 1))
sketch6.addConstraint(Sketcher.Constraint("Vertical", 0))
sketch6.addConstraint(Sketcher.Constraint("Horizontal", 1))
sketch6.addConstraint(Sketcher.Constraint("Vertical", 2))
sketch6.addConstraint(Sketcher.Constraint("Horizontal", 3))
sketch6.addConstraint(Sketcher.Constraint("Equal", 4, 5))
sketch6.addConstraint(Sketcher.Constraint("Vertical", 4, 3, 5, 3))
sketch6.addConstraint(Sketcher.Constraint("Diameter", 4, Q("9 mm")))
sketch6.addConstraint(Sketcher.Constraint("DistanceX", 1, 1, 1, 2, Q("40 mm")))
sketch6.addConstraint(Sketcher.Constraint("DistanceY", 0, 2, 0, 1, Q("450 mm")))
sketch6.addConstraint(Sketcher.Constraint("DistanceX", 4, 3, -1, 1, Q("60 mm")))
sketch6.addConstraint(Sketcher.Constraint("DistanceY", 4, 3, -1, 1, Q("198 mm")))
sketch6.addConstraint(Sketcher.Constraint("DistanceY", -1, 1, 5, 3, Q("123 mm")))
sketch6.addConstraint(Sketcher.Constraint("DistanceX", 0, 2, -1, 1, Q("80 mm")))
sketch6.addConstraint(Sketcher.Constraint("DistanceY", 0, 2, -1, 1, Q("225 mm")))
sketch6.setExpression("Constraints[10]", "Params.sketch6_diameter")
sketch6.setExpression("Constraints[11]", "Params.sketch6_width")
sketch6.setExpression("Constraints[12]", "Params.sketch6_height")
pad6 = body5.newObject("PartDesign::Pad", "Pad005")
pad6.Profile = sketch6
pad6.setExpression("Length", "Params.pad6_length")
body6 = doc.addObject("PartDesign::Body", "Body005")

sketch7 = body6.newObject("Sketcher::SketchObject", "Sketch006")
sketch7.AttachmentSupport = (doc.getObject("XY_Plane005"), [""])
sketch7.MapMode = "FlatFace"
sketch7.AttachmentOffset = App.Placement(App.Vector(0, 0, 18), App.Rotation())
sketch7.addGeometry(Part.LineSegment(App.Vector(40, 225, 0), App.Vector(40, -225, 0)), False)
sketch7.addGeometry(Part.LineSegment(App.Vector(40, -225, 0), App.Vector(80, -225, 0)), False)
sketch7.addGeometry(Part.LineSegment(App.Vector(80, -225, 0), App.Vector(80, 225, 0)), False)
sketch7.addGeometry(Part.LineSegment(App.Vector(80, 225, 0), App.Vector(40, 225, 0)), False)
sketch7.addGeometry(Part.Circle(App.Vector(60, -198, 0), App.Vector(0, 0, 1), 4.5), False)
sketch7.addGeometry(Part.Circle(App.Vector(60, 123, 0), App.Vector(0, 0, 1), 4.5), False)
sketch7.addConstraint(Sketcher.Constraint("Coincident", 0, 2, 1, 1))
sketch7.addConstraint(Sketcher.Constraint("Coincident", 1, 2, 2, 1))
sketch7.addConstraint(Sketcher.Constraint("Coincident", 2, 2, 3, 1))
sketch7.addConstraint(Sketcher.Constraint("Coincident", 3, 2, 0, 1))
sketch7.addConstraint(Sketcher.Constraint("Vertical", 0))
sketch7.addConstraint(Sketcher.Constraint("Horizontal", 1))
sketch7.addConstraint(Sketcher.Constraint("Vertical", 2))
sketch7.addConstraint(Sketcher.Constraint("Horizontal", 3))
sketch7.addConstraint(Sketcher.Constraint("Equal", 4, 5))
sketch7.addConstraint(Sketcher.Constraint("Vertical", 4, 3, 5, 3))
sketch7.addConstraint(Sketcher.Constraint("Diameter", 4, Q("9 mm")))
sketch7.addConstraint(Sketcher.Constraint("DistanceX", 1, 1, 1, 2, Q("40 mm")))
sketch7.addConstraint(Sketcher.Constraint("DistanceY", 0, 2, 0, 1, Q("450 mm")))
sketch7.addConstraint(Sketcher.Constraint("DistanceX", -1, 1, 4, 3, Q("60 mm")))
sketch7.addConstraint(Sketcher.Constraint("DistanceY", 4, 3, -1, 1, Q("198 mm")))
sketch7.addConstraint(Sketcher.Constraint("DistanceY", -1, 1, 5, 3, Q("123 mm")))
sketch7.addConstraint(Sketcher.Constraint("DistanceX", -1, 1, 0, 2, Q("40 mm")))
sketch7.addConstraint(Sketcher.Constraint("DistanceY", 0, 2, -1, 1, Q("225 mm")))
sketch7.setExpression("Constraints[10]", "Params.sketch7_diameter")
sketch7.setExpression("Constraints[11]", "Params.sketch7_width")
sketch7.setExpression("Constraints[12]", "Params.sketch7_height")
pad7 = body6.newObject("PartDesign::Pad", "Pad006")
pad7.Profile = sketch7
pad7.setExpression("Length", "Params.pad7_length")
body7 = doc.addObject("PartDesign::Body", "Body006")

sketch8 = body7.newObject("Sketcher::SketchObject", "Sketch007")
sketch8.AttachmentSupport = (doc.getObject("XY_Plane006"), [""])
sketch8.MapMode = "FlatFace"
sketch8.AttachmentOffset = App.Placement(App.Vector(0, 0, 18), App.Rotation())
sketch8.addGeometry(Part.Circle(App.Vector(-115, 280, 0), App.Vector(0, 0, 1), 4.5), False)
sketch8.addConstraint(Sketcher.Constraint("Diameter", 0, Q("9 mm")))
sketch8.addConstraint(Sketcher.Constraint("DistanceX", 0, 3, -1, 1, Q("115 mm")))
sketch8.addConstraint(Sketcher.Constraint("DistanceY", -1, 1, 0, 3, Q("280 mm")))
sketch8.setExpression("Constraints[0]", "Params.sketch8_diameter")
pad8 = body7.newObject("PartDesign::Pad", "Pad007")
pad8.Profile = sketch8
pad8.setExpression("Length", "Params.pad8_length")
body8 = doc.addObject("PartDesign::Body", "Body007")

sketch9 = body8.newObject("Sketcher::SketchObject", "Sketch008")
sketch9.AttachmentSupport = (doc.getObject("XY_Plane007"), [""])
sketch9.MapMode = "FlatFace"
sketch9.AttachmentOffset = App.Placement(App.Vector(0, 0, 18), App.Rotation())
sketch9.addGeometry(Part.Circle(App.Vector(115, 280, 0), App.Vector(0, 0, 1), 4.5), False)
sketch9.addConstraint(Sketcher.Constraint("Diameter", 0, Q("9 mm")))
sketch9.addConstraint(Sketcher.Constraint("DistanceX", -1, 1, 0, 3, Q("115 mm")))
sketch9.addConstraint(Sketcher.Constraint("DistanceY", -1, 1, 0, 3, Q("280 mm")))
sketch9.setExpression("Constraints[0]", "Params.sketch9_diameter")
pad9 = body8.newObject("PartDesign::Pad", "Pad008")
pad9.Profile = sketch9
pad9.setExpression("Length", "Params.pad9_length")
body9 = doc.addObject("PartDesign::Body", "Body008")

sketch10 = body9.newObject("Sketcher::SketchObject", "Sketch009")
sketch10.AttachmentSupport = (doc.getObject("XY_Plane008"), [""])
sketch10.MapMode = "FlatFace"
sketch10.AttachmentOffset = App.Placement(App.Vector(0, 0, 18), App.Rotation())
sketch10.addGeometry(Part.Circle(App.Vector(-115, -280, 0), App.Vector(0, 0, 1), 4.5), False)
sketch10.addConstraint(Sketcher.Constraint("Diameter", 0, Q("9 mm")))
sketch10.addConstraint(Sketcher.Constraint("DistanceX", 0, 3, -1, 1, Q("115 mm")))
sketch10.addConstraint(Sketcher.Constraint("DistanceY", 0, 3, -1, 1, Q("280 mm")))
sketch10.setExpression("Constraints[0]", "Params.sketch10_diameter")
pad10 = body9.newObject("PartDesign::Pad", "Pad009")
pad10.Profile = sketch10
pad10.setExpression("Length", "Params.pad10_length")
body10 = doc.addObject("PartDesign::Body", "Body009")

sketch11 = body10.newObject("Sketcher::SketchObject", "Sketch010")
sketch11.AttachmentSupport = (doc.getObject("XY_Plane009"), [""])
sketch11.MapMode = "FlatFace"
sketch11.AttachmentOffset = App.Placement(App.Vector(0, 0, 18), App.Rotation())
sketch11.addGeometry(Part.Circle(App.Vector(115, -280, 0), App.Vector(0, 0, 1), 4.5), False)
sketch11.addConstraint(Sketcher.Constraint("Diameter", 0, Q("9 mm")))
sketch11.addConstraint(Sketcher.Constraint("DistanceX", -1, 1, 0, 3, Q("115 mm")))
sketch11.addConstraint(Sketcher.Constraint("DistanceY", 0, 3, -1, 1, Q("280 mm")))
sketch11.setExpression("Constraints[0]", "Params.sketch11_diameter")
pad11 = body10.newObject("PartDesign::Pad", "Pad010")
pad11.Profile = sketch11
pad11.setExpression("Length", "Params.pad11_length")

doc.recompute()
